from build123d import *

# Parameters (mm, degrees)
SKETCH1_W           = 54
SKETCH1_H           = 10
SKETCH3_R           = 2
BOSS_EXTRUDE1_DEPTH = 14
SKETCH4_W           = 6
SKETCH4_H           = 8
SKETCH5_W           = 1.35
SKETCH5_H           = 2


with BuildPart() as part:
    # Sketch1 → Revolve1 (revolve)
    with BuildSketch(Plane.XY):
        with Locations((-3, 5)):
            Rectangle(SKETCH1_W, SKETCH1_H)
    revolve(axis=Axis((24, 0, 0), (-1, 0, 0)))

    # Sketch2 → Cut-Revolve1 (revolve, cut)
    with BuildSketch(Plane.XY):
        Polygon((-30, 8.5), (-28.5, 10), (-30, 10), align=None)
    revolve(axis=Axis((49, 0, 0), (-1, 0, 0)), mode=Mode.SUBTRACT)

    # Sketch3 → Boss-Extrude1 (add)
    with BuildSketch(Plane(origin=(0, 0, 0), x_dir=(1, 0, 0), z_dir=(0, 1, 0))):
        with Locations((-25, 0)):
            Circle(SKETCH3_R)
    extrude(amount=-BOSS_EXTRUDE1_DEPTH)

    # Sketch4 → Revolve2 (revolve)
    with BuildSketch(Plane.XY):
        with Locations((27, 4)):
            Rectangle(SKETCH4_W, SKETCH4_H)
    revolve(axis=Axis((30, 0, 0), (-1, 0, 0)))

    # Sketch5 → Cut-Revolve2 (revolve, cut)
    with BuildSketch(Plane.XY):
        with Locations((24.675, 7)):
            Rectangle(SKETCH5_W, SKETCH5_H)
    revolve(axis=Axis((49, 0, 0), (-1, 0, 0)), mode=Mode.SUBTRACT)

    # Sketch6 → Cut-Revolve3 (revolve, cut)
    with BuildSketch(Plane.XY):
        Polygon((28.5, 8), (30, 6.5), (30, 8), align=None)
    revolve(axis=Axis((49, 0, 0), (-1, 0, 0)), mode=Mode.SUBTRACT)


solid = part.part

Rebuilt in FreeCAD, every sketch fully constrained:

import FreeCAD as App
import Part
import Sketcher
Q = App.Units.Quantity

doc = App.newDocument("Part")
body = doc.addObject("PartDesign::Body", "Body")

# Sketch on XY plane
sketch1 = body.newObject("Sketcher::SketchObject", "Sketch")
sketch1.AttachmentSupport = (doc.getObject("XY_Plane"), [""])
sketch1.MapMode = "FlatFace"
sketch1.addGeometry([
    Part.LineSegment(App.Vector(-30, 10, 0), App.Vector(-30, 0, 0)),
    Part.LineSegment(App.Vector(-30, 0, 0), App.Vector(24, 0, 0)),
    Part.LineSegment(App.Vector(24, 0, 0), App.Vector(24, 10, 0)),
    Part.LineSegment(App.Vector(24, 10, 0), App.Vector(-30, 10, 0)),
], False)
sketch1.addConstraint([
    Sketcher.Constraint("Coincident", 0, 2, 1, 1),
    Sketcher.Constraint("Coincident", 1, 2, 2, 1),
    Sketcher.Constraint("Coincident", 2, 2, 3, 1),
    Sketcher.Constraint("Coincident", 3, 2, 0, 1),
    Sketcher.Constraint("Vertical", 0),
    Sketcher.Constraint("Horizontal", 1),
    Sketcher.Constraint("Vertical", 2),
    Sketcher.Constraint("Horizontal", 3),
    Sketcher.Constraint("PointOnObject", 0, 2, -1),
    Sketcher.Constraint("DistanceX", 1, 1, 1, 2, Q("54 mm")),
    Sketcher.Constraint("DistanceY", 0, 2, 0, 1, Q("10 mm")),
    Sketcher.Constraint("DistanceX", 0, 2, -1, 1, Q("30 mm")),
])
revolution = body.newObject("PartDesign::Revolution", "Revolution")
revolution.Profile = sketch1
revolution.ReferenceAxis = (sketch1, ["H_Axis"])
revolution.Angle = 360

# Sketch on XY plane
sketch2 = body.newObject("Sketcher::SketchObject", "Sketch001")
sketch2.AttachmentSupport = (doc.getObject("XY_Plane"), [""])
sketch2.MapMode = "FlatFace"
sketch2.addGeometry([
    Part.LineSegment(App.Vector(-30, 8.5, 0), App.Vector(-28.5, 10, 0)),
    Part.LineSegment(App.Vector(-28.5, 10, 0), App.Vector(-30, 10, 0)),
    Part.LineSegment(App.Vector(-30, 10, 0), App.Vector(-30, 8.5, 0)),
], False)
sketch2.addConstraint([
    Sketcher.Constraint("Coincident", 0, 2, 1, 1),
    Sketcher.Constraint("Coincident", 1, 2, 2, 1),
    Sketcher.Constraint("Coincident", 2, 2, 0, 1),
    Sketcher.Constraint("Horizontal", 1),
    Sketcher.Constraint("Vertical", 2),
    Sketcher.Constraint("Equal", 1, 2),
    Sketcher.Constraint("DistanceX", 1, 2, 1, 1, Q("1.5 mm")),
    Sketcher.Constraint("DistanceY", -1, 1, 0, 2, Q("10 mm")),
    Sketcher.Constraint("DistanceX", 1, 2, -1, 1, Q("30 mm")),
])
groove = body.newObject("PartDesign::Groove", "Groove")
groove.Profile = sketch2
groove.ReferenceAxis = (sketch2, ["H_Axis"])
groove.Angle = 360

# Sketch on XZ plane
sketch3 = body.newObject("Sketcher::SketchObject", "Sketch002")
sketch3.AttachmentSupport = (doc.getObject("XZ_Plane"), [""])
sketch3.MapMode = "FlatFace"
sketch3.addGeometry(Part.Circle(App.Vector(-25, 0, 0), App.Vector(0, 0, 1), 2), False)
sketch3.addConstraint([
    Sketcher.Constraint("PointOnObject", 0, 3, -1),
    Sketcher.Constraint("Diameter", 0, Q("4 mm")),
    Sketcher.Constraint("DistanceX", 0, 3, -1, 1, Q("25 mm")),
])
pad1 = body.newObject("PartDesign::Pad", "Pad")
pad1.Profile = sketch3
pad1.Length = 14

# Sketch on XY plane
sketch4 = body.newObject("Sketcher::SketchObject", "Sketch003")
sketch4.AttachmentSupport = (doc.getObject("XY_Plane"), [""])
sketch4.MapMode = "FlatFace"
sketch4.addGeometry([
    Part.LineSegment(App.Vector(24, 8, 0), App.Vector(24, 0, 0)),
    Part.LineSegment(App.Vector(24, 0, 0), App.Vector(30, 0, 0)),
    Part.LineSegment(App.Vector(30, 0, 0), App.Vector(30, 8, 0)),
    Part.LineSegment(App.Vector(30, 8, 0), App.Vector(24, 8, 0)),
], False)
sketch4.addConstraint([
    Sketcher.Constraint("Coincident", 0, 2, 1, 1),
    Sketcher.Constraint("Coincident", 1, 2, 2, 1),
    Sketcher.Constraint("Coincident", 2, 2, 3, 1),
    Sketcher.Constraint("Coincident", 3, 2, 0, 1),
    Sketcher.Constraint("Vertical", 0),
    Sketcher.Constraint("Horizontal", 1),
    Sketcher.Constraint("Vertical", 2),
    Sketcher.Constraint("Horizontal", 3),
    Sketcher.Constraint("PointOnObject", 0, 2, -1),
    Sketcher.Constraint("DistanceX", 1, 1, 1, 2, Q("6 mm")),
    Sketcher.Constraint("DistanceY", 0, 2, 0, 1, Q("8 mm")),
    Sketcher.Constraint("DistanceX", -1, 1, 0, 2, Q("24 mm")),
])
revolution2 = body.newObject("PartDesign::Revolution", "Revolution001")
revolution2.Profile = sketch4
revolution2.ReferenceAxis = (sketch4, ["H_Axis"])
revolution2.Angle = 360

# Sketch on XY plane
sketch5 = body.newObject("Sketcher::SketchObject", "Sketch004")
sketch5.AttachmentSupport = (doc.getObject("XY_Plane"), [""])
sketch5.MapMode = "FlatFace"
sketch5.addGeometry([
    Part.LineSegment(App.Vector(24, 8, 0), App.Vector(24, 6, 0)),
    Part.LineSegment(App.Vector(24, 6, 0), App.Vector(25.4, 6, 0)),
    Part.LineSegment(App.Vector(25.4, 6, 0), App.Vector(25.4, 8, 0)),
    Part.LineSegment(App.Vector(25.4, 8, 0), App.Vector(24, 8, 0)),
], False)
sketch5.addConstraint([
    Sketcher.Constraint("Coincident", 0, 2, 1, 1),
    Sketcher.Constraint("Coincident", 1, 2, 2, 1),
    Sketcher.Constraint("Coincident", 2, 2, 3, 1),
    Sketcher.Constraint("Coincident", 3, 2, 0, 1),
    Sketcher.Constraint("Vertical", 0),
    Sketcher.Constraint("Horizontal", 1),
    Sketcher.Constraint("Vertical", 2),
    Sketcher.Constraint("Horizontal", 3),
    Sketcher.Constraint("DistanceY", 0, 2, 0, 1, Q("2 mm")),
    Sketcher.Constraint("DistanceX", -1, 1, 0, 2, Q("24 mm")),
    Sketcher.Constraint("DistanceY", -1, 1, 0, 2, Q("6 mm")),
    Sketcher.Constraint("DistanceX", 1, 1, 1, 2, Q("1.35 mm")),
])
groove2 = body.newObject("PartDesign::Groove", "Groove001")
groove2.Profile = sketch5
groove2.ReferenceAxis = (sketch5, ["H_Axis"])
groove2.Angle = 360

# Sketch on XY plane
sketch6 = body.newObject("Sketcher::SketchObject", "Sketch005")
sketch6.AttachmentSupport = (doc.getObject("XY_Plane"), [""])
sketch6.MapMode = "FlatFace"
sketch6.addGeometry([
    Part.LineSegment(App.Vector(28.5, 8, 0), App.Vector(30, 6.5, 0)),
    Part.LineSegment(App.Vector(30, 6.5, 0), App.Vector(30, 8, 0)),
    Part.LineSegment(App.Vector(30, 8, 0), App.Vector(28.5, 8, 0)),
], False)
sketch6.addConstraint([
    Sketcher.Constraint("Coincident", 0, 2, 1, 1),
    Sketcher.Constraint("Coincident", 1, 2, 2, 1),
    Sketcher.Constraint("Coincident", 2, 2, 0, 1),
    Sketcher.Constraint("Vertical", 1),
    Sketcher.Constraint("Horizontal", 2),
    Sketcher.Constraint("Equal", 2, 1),
    Sketcher.Constraint("DistanceX", 2, 2, 2, 1, Q("1.5 mm")),
    Sketcher.Constraint("DistanceX", -1, 1, 0, 2, Q("30 mm")),
    Sketcher.Constraint("DistanceY", -1, 1, 1, 2, Q("8 mm")),
])
groove3 = body.newObject("PartDesign::Groove", "Groove002")
groove3.Profile = sketch6
groove3.ReferenceAxis = (sketch6, ["H_Axis"])
groove3.Angle = 360

doc.recompute()
